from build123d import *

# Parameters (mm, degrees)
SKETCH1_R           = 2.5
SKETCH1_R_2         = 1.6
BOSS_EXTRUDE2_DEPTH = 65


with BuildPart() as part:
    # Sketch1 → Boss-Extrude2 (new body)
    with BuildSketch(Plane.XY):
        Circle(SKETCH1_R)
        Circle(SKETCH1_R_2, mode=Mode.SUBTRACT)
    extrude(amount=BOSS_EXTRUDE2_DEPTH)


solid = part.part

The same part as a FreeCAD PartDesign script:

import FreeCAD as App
import Part
import Sketcher
Q = App.Units.Quantity

doc = App.newDocument("Part")
params = doc.addObject("Spreadsheet::Sheet", "Params")
for row, (alias, value) in enumerate([
    ("sketch1_diameter", "5 mm"),
    ("sketch1_diameter2", "3.2 mm"),
    ("pad1_length", "65 mm"),
], start=1):
    params.set(f"A{row}", alias)
    params.set(f"B{row}", "=" + value)
    params.setAlias(f"B{row}", alias)

body = doc.addObject("PartDesign::Body", "Body")

sketch1 = body.newObject("Sketcher::SketchObject", "Sketch")
sketch1.AttachmentSupport = (doc.getObject("XY_Plane"), [""])
sketch1.MapMode = "FlatFace"
sketch1.addGeometry(Part.Circle(App.Vector(0, 0, 0), App.Vector(0, 0, 1), 2.5), False)
sketch1.addGeometry(Part.Circle(App.Vector(0, 0, 0), App.Vector(0, 0, 1), 1.6), False)
sketch1.addConstraint(Sketcher.Constraint("Coincident", 0, 3, -1, 1))
sketch1.addConstraint(Sketcher.Constraint("Coincident", 1, 3, -1, 1))
sketch1.addConstraint(Sketcher.Constraint("Diameter", 0, Q("5 mm")))
sketch1.addConstraint(Sketcher.Constraint("Diameter", 1, Q("3.2 mm")))
sketch1.setExpression("Constraints[2]", "Params.sketch1_diameter")
sketch1.setExpression("Constraints[3]", "Params.sketch1_diameter2")
pad1 = body.newObject("PartDesign::Pad", "Pad")
pad1.Profile = sketch1
pad1.setExpression("Length", "Params.pad1_length")

doc.recompute()
